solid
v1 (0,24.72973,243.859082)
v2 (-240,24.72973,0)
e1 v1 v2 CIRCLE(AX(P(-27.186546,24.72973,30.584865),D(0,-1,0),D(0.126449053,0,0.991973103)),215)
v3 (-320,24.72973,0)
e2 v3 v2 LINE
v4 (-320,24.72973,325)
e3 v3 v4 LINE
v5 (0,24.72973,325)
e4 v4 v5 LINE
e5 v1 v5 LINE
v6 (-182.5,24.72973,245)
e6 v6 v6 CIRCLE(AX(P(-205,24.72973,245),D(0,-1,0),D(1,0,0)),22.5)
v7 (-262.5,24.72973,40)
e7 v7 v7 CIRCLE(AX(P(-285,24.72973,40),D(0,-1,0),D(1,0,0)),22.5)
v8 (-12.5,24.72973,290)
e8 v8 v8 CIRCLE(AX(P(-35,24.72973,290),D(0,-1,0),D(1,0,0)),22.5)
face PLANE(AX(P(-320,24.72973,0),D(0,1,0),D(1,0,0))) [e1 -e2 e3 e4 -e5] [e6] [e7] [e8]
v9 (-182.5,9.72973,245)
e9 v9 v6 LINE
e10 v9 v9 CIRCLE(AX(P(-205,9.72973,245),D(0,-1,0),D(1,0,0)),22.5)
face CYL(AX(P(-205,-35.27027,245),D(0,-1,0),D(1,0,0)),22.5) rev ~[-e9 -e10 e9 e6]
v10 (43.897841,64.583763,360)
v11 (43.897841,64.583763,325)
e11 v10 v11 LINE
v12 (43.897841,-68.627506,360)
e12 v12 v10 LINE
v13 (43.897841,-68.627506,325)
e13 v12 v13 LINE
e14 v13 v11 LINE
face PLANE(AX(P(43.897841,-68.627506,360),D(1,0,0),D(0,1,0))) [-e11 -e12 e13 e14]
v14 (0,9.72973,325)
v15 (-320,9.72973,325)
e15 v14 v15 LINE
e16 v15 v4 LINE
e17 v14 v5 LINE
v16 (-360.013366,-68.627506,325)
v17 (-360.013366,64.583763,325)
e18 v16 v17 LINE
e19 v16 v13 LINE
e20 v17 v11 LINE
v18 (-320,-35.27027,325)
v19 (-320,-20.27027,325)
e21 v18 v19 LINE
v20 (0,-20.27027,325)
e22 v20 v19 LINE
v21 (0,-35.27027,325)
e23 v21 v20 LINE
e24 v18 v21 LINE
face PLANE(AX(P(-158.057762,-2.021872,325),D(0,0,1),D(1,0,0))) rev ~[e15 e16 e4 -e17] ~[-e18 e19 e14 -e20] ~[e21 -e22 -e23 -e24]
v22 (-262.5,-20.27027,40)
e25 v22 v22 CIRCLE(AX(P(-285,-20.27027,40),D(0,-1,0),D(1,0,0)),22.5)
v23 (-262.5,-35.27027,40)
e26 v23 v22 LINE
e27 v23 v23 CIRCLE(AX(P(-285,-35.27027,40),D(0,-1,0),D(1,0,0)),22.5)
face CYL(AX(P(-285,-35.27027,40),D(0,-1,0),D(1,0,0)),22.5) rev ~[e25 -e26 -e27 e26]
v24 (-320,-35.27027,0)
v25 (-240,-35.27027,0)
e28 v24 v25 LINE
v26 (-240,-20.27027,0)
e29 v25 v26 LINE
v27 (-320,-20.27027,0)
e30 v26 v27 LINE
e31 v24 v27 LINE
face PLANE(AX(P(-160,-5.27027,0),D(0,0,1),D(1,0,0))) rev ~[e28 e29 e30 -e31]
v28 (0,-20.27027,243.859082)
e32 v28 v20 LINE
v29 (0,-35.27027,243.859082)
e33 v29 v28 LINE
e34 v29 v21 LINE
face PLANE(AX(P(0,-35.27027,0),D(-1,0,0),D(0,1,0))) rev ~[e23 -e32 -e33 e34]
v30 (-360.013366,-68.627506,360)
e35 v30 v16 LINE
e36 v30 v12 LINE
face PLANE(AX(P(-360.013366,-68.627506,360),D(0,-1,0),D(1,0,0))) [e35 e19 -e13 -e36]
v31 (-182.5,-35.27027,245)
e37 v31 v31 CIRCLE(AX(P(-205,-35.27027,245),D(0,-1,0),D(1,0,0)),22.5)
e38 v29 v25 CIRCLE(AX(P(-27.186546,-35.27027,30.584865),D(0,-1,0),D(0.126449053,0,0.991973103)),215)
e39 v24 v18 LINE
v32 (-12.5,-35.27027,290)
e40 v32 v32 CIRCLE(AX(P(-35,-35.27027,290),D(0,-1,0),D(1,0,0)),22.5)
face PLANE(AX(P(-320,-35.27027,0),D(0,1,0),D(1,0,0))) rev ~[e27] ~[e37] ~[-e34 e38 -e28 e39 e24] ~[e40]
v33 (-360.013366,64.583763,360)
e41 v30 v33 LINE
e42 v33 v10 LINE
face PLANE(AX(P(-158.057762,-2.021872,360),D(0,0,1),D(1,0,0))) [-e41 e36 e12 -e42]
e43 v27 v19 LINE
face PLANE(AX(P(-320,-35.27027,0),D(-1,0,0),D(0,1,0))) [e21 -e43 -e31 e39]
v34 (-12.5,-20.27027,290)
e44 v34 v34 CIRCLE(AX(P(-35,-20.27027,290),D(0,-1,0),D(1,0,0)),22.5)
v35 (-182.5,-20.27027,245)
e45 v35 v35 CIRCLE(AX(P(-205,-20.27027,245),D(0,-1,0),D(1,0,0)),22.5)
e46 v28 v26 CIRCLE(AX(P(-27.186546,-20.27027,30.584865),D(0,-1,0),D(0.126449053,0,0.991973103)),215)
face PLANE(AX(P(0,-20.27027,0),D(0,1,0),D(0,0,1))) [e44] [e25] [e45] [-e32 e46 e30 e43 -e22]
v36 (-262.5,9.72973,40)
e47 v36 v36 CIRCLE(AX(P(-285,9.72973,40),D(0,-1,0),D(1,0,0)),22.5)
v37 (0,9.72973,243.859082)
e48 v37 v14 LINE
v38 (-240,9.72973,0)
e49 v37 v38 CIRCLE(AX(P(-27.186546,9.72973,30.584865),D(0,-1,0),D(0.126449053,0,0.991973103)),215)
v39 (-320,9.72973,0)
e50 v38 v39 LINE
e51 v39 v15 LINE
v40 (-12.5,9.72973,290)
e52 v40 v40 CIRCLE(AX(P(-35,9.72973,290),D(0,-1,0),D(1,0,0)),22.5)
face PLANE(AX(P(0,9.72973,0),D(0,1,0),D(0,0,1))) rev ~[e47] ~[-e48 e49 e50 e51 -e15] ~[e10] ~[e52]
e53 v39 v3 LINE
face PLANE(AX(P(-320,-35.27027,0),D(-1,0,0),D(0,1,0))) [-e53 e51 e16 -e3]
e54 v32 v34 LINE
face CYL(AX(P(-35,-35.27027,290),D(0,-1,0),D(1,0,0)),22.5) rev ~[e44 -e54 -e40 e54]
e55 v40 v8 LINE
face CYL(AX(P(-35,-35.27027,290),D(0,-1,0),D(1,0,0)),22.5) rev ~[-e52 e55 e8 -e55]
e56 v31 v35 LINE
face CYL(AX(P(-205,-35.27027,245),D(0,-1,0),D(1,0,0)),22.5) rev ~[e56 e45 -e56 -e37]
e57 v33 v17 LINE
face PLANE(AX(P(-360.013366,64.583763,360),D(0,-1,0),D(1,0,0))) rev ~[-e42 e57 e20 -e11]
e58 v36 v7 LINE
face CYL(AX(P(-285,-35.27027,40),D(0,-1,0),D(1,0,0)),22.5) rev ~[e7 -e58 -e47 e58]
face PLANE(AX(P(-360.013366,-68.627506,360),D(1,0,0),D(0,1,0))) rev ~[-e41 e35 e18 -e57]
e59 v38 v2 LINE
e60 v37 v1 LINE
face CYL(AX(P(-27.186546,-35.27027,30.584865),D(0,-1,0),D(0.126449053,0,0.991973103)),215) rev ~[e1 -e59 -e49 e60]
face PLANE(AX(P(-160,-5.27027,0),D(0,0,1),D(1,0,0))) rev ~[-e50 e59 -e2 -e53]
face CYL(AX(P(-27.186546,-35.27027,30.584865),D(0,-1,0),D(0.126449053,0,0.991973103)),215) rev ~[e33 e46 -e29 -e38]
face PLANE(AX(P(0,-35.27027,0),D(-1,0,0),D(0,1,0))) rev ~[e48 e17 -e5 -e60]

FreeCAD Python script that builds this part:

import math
import FreeCAD as App
import Part
import Sketcher

V = App.Vector
Q = App.Units.Quantity

doc = App.newDocument("Part")
body = doc.addObject("PartDesign::Body", "Body")

sketch1 = doc.addObject("Sketcher::SketchObject", "Sketch")
body.addObject(sketch1)
sketch1.AttachmentSupport = (doc.XY_Plane, [""])
sketch1.MapMode = "FlatFace"
sketch1.addGeometry([
    Part.LineSegment(V(-320, 25, 0), V(-320, -35, 0)),
    Part.LineSegment(V(-320, -35, 0), V(0, -35, 0)),
    Part.LineSegment(V(0, -35, 0), V(0, 25, 0)),
    Part.LineSegment(V(0, 25, 0), V(-320, 25, 0)),
], False)
sketch1.addConstraint([
    Sketcher.Constraint("Coincident", 0, 2, 1, 1),
    Sketcher.Constraint("Coincident", 1, 2, 2, 1),
    Sketcher.Constraint("Coincident", 2, 2, 3, 1),
    Sketcher.Constraint("Coincident", 3, 2, 0, 1),
    Sketcher.Constraint("Vertical", 0),
    Sketcher.Constraint("Horizontal", 1),
    Sketcher.Constraint("Vertical", 2),
    Sketcher.Constraint("Horizontal", 3),
    Sketcher.Constraint("PointOnObject", 1, 2, -2),
    Sketcher.Constraint("DistanceX", 1, 1, 1, 2, Q("320 mm")),
    Sketcher.Constraint("DistanceY", 0, 2, 0, 1, Q("60 mm")),
    Sketcher.Constraint("DistanceY", 0, 2, -1, 1, Q("35.27027 mm")),
])
pad1 = doc.addObject("PartDesign::Pad", "Pad")
body.addObject(pad1)
pad1.Profile = sketch1
pad1.Length = 360

sketch2 = doc.addObject("Sketcher::SketchObject", "Sketch001")
body.addObject(sketch2)
sketch2.AttachmentSupport = (doc.XZ_Plane, [""])
sketch2.MapMode = "FlatFace"
sketch2.AttachmentOffset = App.Placement(V(0, 0, 35.27027), App.Rotation())
sketch2.addGeometry([
    Part.Circle(V(-285, 40, 0), V(0, 0, 1), 22),
    Part.Circle(V(-35, 290, 0), V(0, 0, 1), 22),
    Part.Circle(V(-205, 245, 0), V(0, 0, 1), 22),
], False)
sketch2.addConstraint([
    Sketcher.Constraint("Equal", 0, 1),
    Sketcher.Constraint("Equal", 1, 2),
    Sketcher.Constraint("Diameter", 0, Q("45 mm")),
    Sketcher.Constraint("DistanceX", 0, 3, -1, 1, Q("285 mm")),
    Sketcher.Constraint("DistanceY", -1, 1, 0, 3, Q("40 mm")),
    Sketcher.Constraint("DistanceX", 1, 3, -1, 1, Q("35 mm")),
    Sketcher.Constraint("DistanceY", -1, 1, 1, 3, Q("290 mm")),
    Sketcher.Constraint("DistanceX", 2, 3, -1, 1, Q("205 mm")),
    Sketcher.Constraint("DistanceY", -1, 1, 2, 3, Q("245 mm")),
])
pocket1 = doc.addObject("PartDesign::Pocket", "Pocket")
body.addObject(pocket1)
pocket1.Profile = sketch2
pocket1.Type = "ThroughAll"

sketch3 = doc.addObject("Sketcher::SketchObject", "Sketch002")
body.addObject(sketch3)
sketch3.AttachmentSupport = (doc.XZ_Plane, [""])
sketch3.MapMode = "FlatFace"
sketch3.AttachmentOffset = App.Placement(V(0, 0, 35.27027), App.Rotation())
sketch3.addGeometry([
    Part.LineSegment(V(-240, 0, 0), V(0, 0, 0)),
    Part.LineSegment(V(0, 0, 0), V(0, 244, 0)),
    Part.ArcOfCircle(Part.Circle(V(-27, 31, 0), V(0, 0, 1), 215), math.radians(83), math.radians(188)),
], False)
sketch3.addConstraint([
    Sketcher.Constraint("Coincident", 0, 2, 1, 1),
    Sketcher.Constraint("Coincident", 1, 2, 2, 1),
    Sketcher.Constraint("Coincident", 2, 2, 0, 1),
    Sketcher.Constraint("Horizontal", 0),
    Sketcher.Constraint("Vertical", 1),
    Sketcher.Constraint("Coincident", 0, 2, -1, 1),
    Sketcher.Constraint("Radius", 2, Q("215 mm")),
    Sketcher.Constraint("DistanceX", 0, 1, 0, 2, Q("240 mm")),
    Sketcher.Constraint("DistanceY", 1, 1, 1, 2, Q("243.859082 mm")),
])
pocket2 = doc.addObject("PartDesign::Pocket", "Pocket001")
body.addObject(pocket2)
pocket2.Profile = sketch3
pocket2.Type = "ThroughAll"

sketch4 = doc.addObject("Sketcher::SketchObject", "Sketch003")
body.addObject(sketch4)
sketch4.AttachmentSupport = (doc.XY_Plane, [""])
sketch4.MapMode = "FlatFace"
sketch4.AttachmentOffset = App.Placement(V(0, 0, 360), App.Rotation())
sketch4.addGeometry([
    Part.LineSegment(V(-360, 65, 0), V(-360, -69, 0)),
    Part.LineSegment(V(-360, -69, 0), V(44, -69, 0)),
    Part.LineSegment(V(44, -69, 0), V(44, 65, 0)),
    Part.LineSegment(V(44, 65, 0), V(-360, 65, 0)),
    Part.LineSegment(V(0, -35, 0), V(-320, -35, 0)),
    Part.LineSegment(V(-320, -35, 0), V(-320, 25, 0)),
    Part.LineSegment(V(-320, 25, 0), V(0, 25, 0)),
    Part.LineSegment(V(0, 25, 0), V(0, -35, 0)),
], False)
sketch4.addConstraint([
    Sketcher.Constraint("Coincident", 0, 2, 1, 1),
    Sketcher.Constraint("Coincident", 1, 2, 2, 1),
    Sketcher.Constraint("Coincident", 2, 2, 3, 1),
    Sketcher.Constraint("Coincident", 3, 2, 0, 1),
    Sketcher.Constraint("Coincident", 4, 2, 5, 1),
    Sketcher.Constraint("Coincident", 5, 2, 6, 1),
    Sketcher.Constraint("Coincident", 6, 2, 7, 1),
    Sketcher.Constraint("Coincident", 7, 2, 4, 1),
    Sketcher.Constraint("Vertical", 0),
    Sketcher.Constraint("Horizontal", 1),
    Sketcher.Constraint("Vertical", 2),
    Sketcher.Constraint("Horizontal", 3),
    Sketcher.Constraint("Horizontal", 4),
    Sketcher.Constraint("Vertical", 5),
    Sketcher.Constraint("Horizontal", 6),
    Sketcher.Constraint("Vertical", 7),
    Sketcher.Constraint("PointOnObject", 6, 2, -2),
    Sketcher.Constraint("DistanceX", 4, 2, 4, 1, Q("320 mm")),
    Sketcher.Constraint("DistanceY", 5, 1, 5, 2, Q("60 mm")),
    Sketcher.Constraint("DistanceY", 0, 2, 0, 1, Q("133.211269 mm")),
    Sketcher.Constraint("DistanceX", 1, 1, 1, 2, Q("403.911207 mm")),
    Sketcher.Constraint("DistanceX", -1, 1, 1, 2, Q("43.897841 mm")),
    Sketcher.Constraint("DistanceY", 4, 2, -1, 1, Q("35.27027 mm")),
    Sketcher.Constraint("DistanceY", 0, 2, -1, 1, Q("68.627506 mm")),
])
pad2 = doc.addObject("PartDesign::Pad", "Pad001")
body.addObject(pad2)
pad2.Profile = sketch4
pad2.Length = 35
pad2.Reversed = True

sketch5 = doc.addObject("Sketcher::SketchObject", "Sketch004")
body.addObject(sketch5)
sketch5.AttachmentSupport = (doc.YZ_Plane, [""])
sketch5.MapMode = "FlatFace"
sketch5.addGeometry([
    Part.LineSegment(V(-20, 325, 0), V(-20, 0, 0)),
    Part.LineSegment(V(-20, 0, 0), V(10, 0, 0)),
    Part.LineSegment(V(10, 0, 0), V(10, 325, 0)),
    Part.LineSegment(V(10, 325, 0), V(-20, 325, 0)),
], False)
sketch5.addConstraint([
    Sketcher.Constraint("Coincident", 0, 2, 1, 1),
    Sketcher.Constraint("Coincident", 1, 2, 2, 1),
    Sketcher.Constraint("Coincident", 2, 2, 3, 1),
    Sketcher.Constraint("Coincident", 3, 2, 0, 1),
    Sketcher.Constraint("Vertical", 0),
    Sketcher.Constraint("Horizontal", 1),
    Sketcher.Constraint("Vertical", 2),
    Sketcher.Constraint("Horizontal", 3),
    Sketcher.Constraint("PointOnObject", 0, 2, -1),
    Sketcher.Constraint("DistanceX", 1, 1, 1, 2, Q("30 mm")),
    Sketcher.Constraint("DistanceY", 0, 2, 0, 1, Q("325 mm")),
    Sketcher.Constraint("DistanceX", 0, 2, -1, 1, Q("20.27027 mm")),
])
pocket3 = doc.addObject("PartDesign::Pocket", "Pocket002")
body.addObject(pocket3)
pocket3.Profile = sketch5
pocket3.Type = "ThroughAll"

doc.recompute()
